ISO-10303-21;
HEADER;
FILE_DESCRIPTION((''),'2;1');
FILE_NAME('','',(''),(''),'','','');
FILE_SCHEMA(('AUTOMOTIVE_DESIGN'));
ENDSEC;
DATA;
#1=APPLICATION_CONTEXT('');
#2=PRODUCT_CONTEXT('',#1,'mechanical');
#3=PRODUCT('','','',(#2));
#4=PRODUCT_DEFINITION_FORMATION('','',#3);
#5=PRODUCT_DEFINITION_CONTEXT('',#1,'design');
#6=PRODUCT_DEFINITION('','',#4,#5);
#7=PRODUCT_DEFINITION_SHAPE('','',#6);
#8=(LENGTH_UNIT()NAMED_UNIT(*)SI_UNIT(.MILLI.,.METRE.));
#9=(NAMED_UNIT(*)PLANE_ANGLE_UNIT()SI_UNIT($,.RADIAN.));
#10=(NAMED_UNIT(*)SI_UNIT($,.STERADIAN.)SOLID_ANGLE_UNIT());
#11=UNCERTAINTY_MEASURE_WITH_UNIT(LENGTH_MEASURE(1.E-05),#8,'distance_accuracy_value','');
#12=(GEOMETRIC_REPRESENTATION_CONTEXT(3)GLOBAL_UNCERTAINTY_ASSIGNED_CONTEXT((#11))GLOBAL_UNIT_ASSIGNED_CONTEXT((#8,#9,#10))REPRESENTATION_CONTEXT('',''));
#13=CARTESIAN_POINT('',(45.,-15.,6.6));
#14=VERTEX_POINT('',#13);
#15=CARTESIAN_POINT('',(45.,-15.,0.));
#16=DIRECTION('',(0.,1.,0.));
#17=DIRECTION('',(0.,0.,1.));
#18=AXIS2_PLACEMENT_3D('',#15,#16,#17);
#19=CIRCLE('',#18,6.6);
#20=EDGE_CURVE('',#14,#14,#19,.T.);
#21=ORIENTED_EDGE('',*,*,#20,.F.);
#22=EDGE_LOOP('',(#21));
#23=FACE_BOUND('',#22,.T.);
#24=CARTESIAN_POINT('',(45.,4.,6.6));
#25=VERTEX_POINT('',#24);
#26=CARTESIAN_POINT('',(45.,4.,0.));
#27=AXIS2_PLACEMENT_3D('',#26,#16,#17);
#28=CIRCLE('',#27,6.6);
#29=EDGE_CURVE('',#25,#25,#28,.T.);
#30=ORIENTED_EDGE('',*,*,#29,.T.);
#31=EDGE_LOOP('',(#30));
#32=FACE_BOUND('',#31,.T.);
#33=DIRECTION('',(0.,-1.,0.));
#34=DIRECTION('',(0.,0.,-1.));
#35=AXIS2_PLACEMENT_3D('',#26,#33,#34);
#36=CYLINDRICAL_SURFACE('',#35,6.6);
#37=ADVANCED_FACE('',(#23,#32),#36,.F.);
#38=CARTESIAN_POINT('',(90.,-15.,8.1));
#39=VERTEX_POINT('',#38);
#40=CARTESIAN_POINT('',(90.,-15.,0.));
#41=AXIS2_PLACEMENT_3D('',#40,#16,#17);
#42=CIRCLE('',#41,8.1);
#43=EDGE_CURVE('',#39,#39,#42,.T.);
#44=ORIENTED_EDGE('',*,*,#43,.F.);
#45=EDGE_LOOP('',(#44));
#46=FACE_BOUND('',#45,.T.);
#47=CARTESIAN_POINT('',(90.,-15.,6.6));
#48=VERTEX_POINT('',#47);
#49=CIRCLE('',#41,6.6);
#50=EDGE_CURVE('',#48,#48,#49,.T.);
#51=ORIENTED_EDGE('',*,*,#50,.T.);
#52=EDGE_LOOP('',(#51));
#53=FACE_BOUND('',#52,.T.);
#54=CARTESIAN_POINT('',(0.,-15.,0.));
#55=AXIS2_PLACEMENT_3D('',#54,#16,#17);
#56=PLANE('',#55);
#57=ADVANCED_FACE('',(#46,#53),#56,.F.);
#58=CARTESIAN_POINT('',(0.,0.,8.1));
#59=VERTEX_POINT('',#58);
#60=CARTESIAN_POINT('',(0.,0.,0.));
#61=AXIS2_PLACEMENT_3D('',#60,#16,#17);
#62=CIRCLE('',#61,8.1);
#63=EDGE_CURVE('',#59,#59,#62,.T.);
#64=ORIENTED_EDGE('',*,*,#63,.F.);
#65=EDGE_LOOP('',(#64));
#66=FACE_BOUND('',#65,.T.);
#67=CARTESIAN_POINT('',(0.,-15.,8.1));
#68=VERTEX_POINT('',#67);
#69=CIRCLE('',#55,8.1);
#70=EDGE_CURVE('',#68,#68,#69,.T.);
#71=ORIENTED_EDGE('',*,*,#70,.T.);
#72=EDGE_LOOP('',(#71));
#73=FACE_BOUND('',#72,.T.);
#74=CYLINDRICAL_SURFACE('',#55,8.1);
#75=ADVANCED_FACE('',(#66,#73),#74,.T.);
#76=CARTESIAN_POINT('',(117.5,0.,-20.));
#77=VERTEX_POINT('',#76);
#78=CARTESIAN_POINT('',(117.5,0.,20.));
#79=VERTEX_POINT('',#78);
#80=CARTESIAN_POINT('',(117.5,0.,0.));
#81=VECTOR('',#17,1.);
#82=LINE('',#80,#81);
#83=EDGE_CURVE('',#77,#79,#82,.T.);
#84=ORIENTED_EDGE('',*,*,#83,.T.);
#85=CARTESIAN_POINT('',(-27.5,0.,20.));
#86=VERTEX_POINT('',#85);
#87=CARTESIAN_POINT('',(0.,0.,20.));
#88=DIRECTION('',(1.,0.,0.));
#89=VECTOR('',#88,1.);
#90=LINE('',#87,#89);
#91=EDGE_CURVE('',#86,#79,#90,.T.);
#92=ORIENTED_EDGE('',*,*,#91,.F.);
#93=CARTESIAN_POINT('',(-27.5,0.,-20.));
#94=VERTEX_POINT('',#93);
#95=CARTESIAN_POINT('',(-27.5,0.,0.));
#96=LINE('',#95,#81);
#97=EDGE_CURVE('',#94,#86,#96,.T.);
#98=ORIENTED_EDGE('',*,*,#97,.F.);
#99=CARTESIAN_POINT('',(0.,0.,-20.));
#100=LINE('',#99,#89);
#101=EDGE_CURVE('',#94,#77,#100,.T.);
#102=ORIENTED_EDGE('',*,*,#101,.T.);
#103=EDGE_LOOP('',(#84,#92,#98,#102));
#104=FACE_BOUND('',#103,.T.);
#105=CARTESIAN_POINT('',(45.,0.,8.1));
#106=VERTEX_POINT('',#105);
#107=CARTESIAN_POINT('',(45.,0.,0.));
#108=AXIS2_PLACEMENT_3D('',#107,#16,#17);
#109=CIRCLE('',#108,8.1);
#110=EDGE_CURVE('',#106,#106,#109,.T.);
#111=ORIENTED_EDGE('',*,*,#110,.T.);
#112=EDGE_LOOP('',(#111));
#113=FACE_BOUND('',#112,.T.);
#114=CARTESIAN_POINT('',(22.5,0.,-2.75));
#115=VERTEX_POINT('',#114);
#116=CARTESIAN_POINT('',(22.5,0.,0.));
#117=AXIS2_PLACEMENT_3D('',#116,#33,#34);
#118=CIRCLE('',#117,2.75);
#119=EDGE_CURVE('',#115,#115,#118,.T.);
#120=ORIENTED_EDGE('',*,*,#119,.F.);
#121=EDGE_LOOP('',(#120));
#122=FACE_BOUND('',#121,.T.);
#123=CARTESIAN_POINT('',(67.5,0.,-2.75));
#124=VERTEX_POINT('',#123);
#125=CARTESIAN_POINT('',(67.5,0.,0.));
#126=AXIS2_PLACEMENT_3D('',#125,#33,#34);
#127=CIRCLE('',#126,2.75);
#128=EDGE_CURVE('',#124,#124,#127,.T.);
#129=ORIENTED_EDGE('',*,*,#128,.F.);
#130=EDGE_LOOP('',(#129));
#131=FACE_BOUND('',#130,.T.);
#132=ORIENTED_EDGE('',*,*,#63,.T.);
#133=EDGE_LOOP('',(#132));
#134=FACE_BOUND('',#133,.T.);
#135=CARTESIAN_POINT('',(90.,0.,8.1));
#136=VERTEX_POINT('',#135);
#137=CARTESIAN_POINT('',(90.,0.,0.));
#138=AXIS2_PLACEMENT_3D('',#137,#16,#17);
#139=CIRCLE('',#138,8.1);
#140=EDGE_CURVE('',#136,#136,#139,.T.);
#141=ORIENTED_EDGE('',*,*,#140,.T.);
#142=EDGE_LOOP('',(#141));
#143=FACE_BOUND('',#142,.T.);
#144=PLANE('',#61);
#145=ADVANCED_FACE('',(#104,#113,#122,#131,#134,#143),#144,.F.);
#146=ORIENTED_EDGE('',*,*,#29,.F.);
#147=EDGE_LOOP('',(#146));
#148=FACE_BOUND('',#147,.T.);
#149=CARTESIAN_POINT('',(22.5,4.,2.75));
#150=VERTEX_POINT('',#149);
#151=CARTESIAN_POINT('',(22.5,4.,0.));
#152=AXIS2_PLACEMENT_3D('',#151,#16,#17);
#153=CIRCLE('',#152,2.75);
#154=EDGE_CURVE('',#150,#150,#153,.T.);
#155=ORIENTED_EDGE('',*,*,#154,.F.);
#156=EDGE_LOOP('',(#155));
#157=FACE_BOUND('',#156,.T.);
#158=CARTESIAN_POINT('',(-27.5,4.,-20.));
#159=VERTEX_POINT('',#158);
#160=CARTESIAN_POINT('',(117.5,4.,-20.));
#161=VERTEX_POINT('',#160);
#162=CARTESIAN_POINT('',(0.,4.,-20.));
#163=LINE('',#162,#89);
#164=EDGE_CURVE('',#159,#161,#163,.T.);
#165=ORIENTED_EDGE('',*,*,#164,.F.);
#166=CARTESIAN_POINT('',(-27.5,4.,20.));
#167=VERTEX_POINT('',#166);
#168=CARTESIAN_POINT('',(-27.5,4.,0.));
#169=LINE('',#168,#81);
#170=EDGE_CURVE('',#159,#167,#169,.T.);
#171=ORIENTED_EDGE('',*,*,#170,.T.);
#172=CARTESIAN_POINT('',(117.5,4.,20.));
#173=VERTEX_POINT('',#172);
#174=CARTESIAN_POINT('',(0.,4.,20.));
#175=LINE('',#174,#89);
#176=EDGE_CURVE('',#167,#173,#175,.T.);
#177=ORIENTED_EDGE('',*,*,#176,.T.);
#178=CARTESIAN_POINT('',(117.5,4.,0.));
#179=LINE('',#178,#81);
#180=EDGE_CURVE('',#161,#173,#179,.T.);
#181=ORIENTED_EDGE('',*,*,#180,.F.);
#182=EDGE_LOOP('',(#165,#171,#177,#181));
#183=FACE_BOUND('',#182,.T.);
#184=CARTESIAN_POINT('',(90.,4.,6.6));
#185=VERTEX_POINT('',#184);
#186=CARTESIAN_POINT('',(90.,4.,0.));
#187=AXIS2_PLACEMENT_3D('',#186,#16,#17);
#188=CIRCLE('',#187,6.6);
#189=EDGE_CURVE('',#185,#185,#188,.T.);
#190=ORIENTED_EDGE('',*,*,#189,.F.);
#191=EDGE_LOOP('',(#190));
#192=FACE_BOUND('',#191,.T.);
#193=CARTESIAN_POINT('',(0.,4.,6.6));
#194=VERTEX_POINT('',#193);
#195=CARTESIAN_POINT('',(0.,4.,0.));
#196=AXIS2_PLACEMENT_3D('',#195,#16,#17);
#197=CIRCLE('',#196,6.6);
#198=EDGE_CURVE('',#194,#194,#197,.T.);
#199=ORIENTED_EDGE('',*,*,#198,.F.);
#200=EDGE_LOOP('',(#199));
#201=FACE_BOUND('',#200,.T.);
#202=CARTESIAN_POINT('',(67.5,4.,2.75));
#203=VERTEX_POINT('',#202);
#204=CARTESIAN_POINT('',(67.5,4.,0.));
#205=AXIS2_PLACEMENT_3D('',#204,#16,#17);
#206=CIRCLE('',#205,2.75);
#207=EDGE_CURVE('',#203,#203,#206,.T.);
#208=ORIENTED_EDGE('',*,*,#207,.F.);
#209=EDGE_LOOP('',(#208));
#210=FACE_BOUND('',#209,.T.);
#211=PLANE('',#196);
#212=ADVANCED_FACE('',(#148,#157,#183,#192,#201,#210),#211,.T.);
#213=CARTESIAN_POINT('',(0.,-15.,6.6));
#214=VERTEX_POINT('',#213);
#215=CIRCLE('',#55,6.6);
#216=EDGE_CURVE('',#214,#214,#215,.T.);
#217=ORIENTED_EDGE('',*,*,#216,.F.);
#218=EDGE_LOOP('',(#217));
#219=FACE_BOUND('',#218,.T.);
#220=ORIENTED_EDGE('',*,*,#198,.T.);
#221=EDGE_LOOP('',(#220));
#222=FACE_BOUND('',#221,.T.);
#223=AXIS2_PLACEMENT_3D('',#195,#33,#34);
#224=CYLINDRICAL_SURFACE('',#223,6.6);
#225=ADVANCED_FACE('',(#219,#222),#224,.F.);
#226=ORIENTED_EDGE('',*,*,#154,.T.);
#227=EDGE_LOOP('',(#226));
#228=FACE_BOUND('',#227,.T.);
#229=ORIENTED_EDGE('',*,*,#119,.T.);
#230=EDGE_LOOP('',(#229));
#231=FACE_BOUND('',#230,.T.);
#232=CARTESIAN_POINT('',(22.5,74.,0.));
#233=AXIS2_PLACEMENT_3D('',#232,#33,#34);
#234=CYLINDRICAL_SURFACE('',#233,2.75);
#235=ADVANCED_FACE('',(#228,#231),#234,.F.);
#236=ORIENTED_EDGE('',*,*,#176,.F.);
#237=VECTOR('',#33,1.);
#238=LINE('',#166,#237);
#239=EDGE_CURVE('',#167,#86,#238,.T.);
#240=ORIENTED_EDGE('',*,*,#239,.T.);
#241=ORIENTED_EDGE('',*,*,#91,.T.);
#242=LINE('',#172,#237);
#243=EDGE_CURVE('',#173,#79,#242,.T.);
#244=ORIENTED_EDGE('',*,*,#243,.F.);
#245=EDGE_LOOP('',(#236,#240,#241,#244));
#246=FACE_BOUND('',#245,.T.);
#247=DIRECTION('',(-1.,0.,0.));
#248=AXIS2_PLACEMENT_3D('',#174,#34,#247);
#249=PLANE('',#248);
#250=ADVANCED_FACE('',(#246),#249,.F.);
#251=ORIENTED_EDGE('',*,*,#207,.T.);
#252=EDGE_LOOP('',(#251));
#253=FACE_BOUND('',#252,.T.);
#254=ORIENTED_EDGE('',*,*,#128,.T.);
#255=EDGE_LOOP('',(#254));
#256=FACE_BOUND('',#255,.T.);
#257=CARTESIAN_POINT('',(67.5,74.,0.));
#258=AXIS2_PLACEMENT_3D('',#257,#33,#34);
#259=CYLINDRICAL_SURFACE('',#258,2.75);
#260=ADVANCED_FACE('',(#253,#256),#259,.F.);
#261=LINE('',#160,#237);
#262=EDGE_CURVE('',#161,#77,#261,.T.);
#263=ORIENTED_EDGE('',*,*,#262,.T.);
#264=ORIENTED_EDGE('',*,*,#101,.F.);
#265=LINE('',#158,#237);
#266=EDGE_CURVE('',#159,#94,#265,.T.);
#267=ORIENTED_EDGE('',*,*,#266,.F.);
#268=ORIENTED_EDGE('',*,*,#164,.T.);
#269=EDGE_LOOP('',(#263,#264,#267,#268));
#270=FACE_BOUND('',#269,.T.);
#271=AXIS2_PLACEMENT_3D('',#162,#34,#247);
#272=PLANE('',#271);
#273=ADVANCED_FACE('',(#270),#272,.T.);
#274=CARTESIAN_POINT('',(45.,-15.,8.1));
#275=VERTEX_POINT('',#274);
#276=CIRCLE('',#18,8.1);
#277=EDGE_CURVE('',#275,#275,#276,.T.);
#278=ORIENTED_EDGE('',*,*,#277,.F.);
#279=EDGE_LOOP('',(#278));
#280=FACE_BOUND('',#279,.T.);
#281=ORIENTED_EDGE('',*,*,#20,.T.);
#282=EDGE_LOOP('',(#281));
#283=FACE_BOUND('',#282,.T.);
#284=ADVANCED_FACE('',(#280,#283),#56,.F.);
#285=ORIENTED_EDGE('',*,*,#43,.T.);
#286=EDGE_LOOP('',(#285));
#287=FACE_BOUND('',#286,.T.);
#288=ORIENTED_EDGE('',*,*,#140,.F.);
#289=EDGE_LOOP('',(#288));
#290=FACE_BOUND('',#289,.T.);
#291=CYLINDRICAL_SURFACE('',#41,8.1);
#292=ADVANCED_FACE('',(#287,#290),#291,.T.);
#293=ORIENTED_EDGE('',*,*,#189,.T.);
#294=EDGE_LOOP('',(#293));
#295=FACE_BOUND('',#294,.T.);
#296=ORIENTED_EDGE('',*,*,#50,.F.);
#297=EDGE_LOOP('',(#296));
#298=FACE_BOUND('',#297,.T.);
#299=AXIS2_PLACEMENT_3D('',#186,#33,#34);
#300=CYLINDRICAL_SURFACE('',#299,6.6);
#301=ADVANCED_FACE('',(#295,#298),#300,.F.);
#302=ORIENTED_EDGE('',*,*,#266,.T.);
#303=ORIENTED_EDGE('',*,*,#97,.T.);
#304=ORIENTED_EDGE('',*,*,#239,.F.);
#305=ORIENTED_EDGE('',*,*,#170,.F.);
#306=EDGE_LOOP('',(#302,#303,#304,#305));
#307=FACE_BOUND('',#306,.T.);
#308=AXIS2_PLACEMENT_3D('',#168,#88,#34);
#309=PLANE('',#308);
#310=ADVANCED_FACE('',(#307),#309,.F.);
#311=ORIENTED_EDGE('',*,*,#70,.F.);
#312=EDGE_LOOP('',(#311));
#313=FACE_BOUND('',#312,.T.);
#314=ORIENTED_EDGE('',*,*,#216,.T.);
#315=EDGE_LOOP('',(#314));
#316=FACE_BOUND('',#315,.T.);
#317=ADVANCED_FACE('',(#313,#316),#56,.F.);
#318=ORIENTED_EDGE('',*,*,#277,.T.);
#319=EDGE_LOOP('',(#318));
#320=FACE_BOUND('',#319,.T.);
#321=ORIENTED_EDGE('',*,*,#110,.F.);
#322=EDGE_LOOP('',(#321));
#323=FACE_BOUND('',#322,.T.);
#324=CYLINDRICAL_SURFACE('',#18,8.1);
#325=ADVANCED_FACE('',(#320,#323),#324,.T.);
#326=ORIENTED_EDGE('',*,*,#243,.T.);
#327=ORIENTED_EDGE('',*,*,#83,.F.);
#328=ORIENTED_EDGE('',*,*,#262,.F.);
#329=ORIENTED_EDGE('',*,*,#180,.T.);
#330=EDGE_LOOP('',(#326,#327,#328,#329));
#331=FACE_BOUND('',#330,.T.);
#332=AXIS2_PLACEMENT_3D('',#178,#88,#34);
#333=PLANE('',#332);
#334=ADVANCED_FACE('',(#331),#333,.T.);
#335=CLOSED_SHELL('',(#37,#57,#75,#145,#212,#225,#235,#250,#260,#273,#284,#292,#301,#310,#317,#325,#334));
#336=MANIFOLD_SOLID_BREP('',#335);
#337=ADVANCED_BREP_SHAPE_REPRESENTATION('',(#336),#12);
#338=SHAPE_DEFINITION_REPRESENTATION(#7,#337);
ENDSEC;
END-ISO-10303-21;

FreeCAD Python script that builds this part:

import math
import FreeCAD as App
import Part
import Sketcher

doc = App.newDocument("Part")
body = doc.addObject("PartDesign::Body", "Body")

sketch1 = body.newObject("Sketcher::SketchObject", "Sketch")
sketch1.AttachmentSupport = (doc.getObject("XZ_Plane"), [""])
sketch1.MapMode = "FlatFace"
sketch1.addGeometry([
    Part.LineSegment(App.Vector(-28, -20, 0), App.Vector(-28, 20, 0)),
    Part.LineSegment(App.Vector(-28, 20, 0), App.Vector(118, 20, 0)),
    Part.LineSegment(App.Vector(118, 20, 0), App.Vector(118, -20, 0)),
    Part.LineSegment(App.Vector(118, -20, 0), App.Vector(-28, -20, 0)),
    Part.ArcOfCircle(Part.Circle(App.Vector(45, 0, 0), App.Vector(0, 0, 1), 7), math.radians(180), math.radians(270)),
    Part.ArcOfCircle(Part.Circle(App.Vector(45, 0, 0), App.Vector(0, 0, 1), 7), math.radians(-90), math.radians(0)),
    Part.ArcOfCircle(Part.Circle(App.Vector(45, 0, 0), App.Vector(0, 0, 1), 7), math.radians(0), math.radians(180)),
    Part.Circle(App.Vector(0, 0, 0), App.Vector(0, 0, 1), 7),
    Part.Circle(App.Vector(90, 0, 0), App.Vector(0, 0, 1), 7),
], False)
sketch1.addConstraint([
    Sketcher.Constraint("Coincident", 0, 2, 1, 1),
    Sketcher.Constraint("Coincident", 1, 2, 2, 1),
    Sketcher.Constraint("Coincident", 2, 2, 3, 1),
    Sketcher.Constraint("Coincident", 3, 2, 0, 1),
    Sketcher.Constraint("Tangent", 4, 2, 5, 1),
    Sketcher.Constraint("Tangent", 5, 2, 6, 1),
    Sketcher.Constraint("Tangent", 6, 2, 4, 1),
    Sketcher.Constraint("Vertical", 0),
    Sketcher.Constraint("Horizontal", 1),
    Sketcher.Constraint("Vertical", 2),
    Sketcher.Constraint("Horizontal", 3),
    Sketcher.Constraint("Coincident", 7, 3, -1, 1),
    Sketcher.Constraint("Equal", 6, 7),
    Sketcher.Constraint("Equal", 7, 8),
    Sketcher.Constraint("PointOnObject", 4, 3, -1),
    Sketcher.Constraint("PointOnObject", 8, 3, -1),
    Sketcher.Constraint("PointOnObject", 5, 2, -1),
    Sketcher.Constraint("PointOnObject", 6, 2, -1),
    Sketcher.Constraint("Vertical", 6, 3, 4, 2),
    Sketcher.Constraint("Diameter", 7, 13.2),
    Sketcher.Constraint("DistanceX", 1, 1, 1, 2, 145.0),
    Sketcher.Constraint("DistanceY", 0, 1, 0, 2, 40.0),
    Sketcher.Constraint("DistanceX", -1, 1, 4, 3, 45.0),
    Sketcher.Constraint("DistanceX", -1, 1, 8, 3, 90.0),
    Sketcher.Constraint("DistanceY", -1, 1, 0, 2, 20.0),
    Sketcher.Constraint("DistanceX", 0, 2, -1, 1, 27.5),
])
pad1 = body.newObject("PartDesign::Pad", "Pad")
pad1.Profile = sketch1
pad1.Length = 4
pad1.Reversed = True

sketch2 = body.newObject("Sketcher::SketchObject", "Sketch001")
sketch2.AttachmentSupport = (doc.getObject("XZ_Plane"), [""])
sketch2.MapMode = "FlatFace"
sketch2.AttachmentOffset = App.Placement(App.Vector(0, 0, 15), App.Rotation())
sketch2.addGeometry([
    Part.Circle(App.Vector(0, 0, 0), App.Vector(0, 0, 1), 8),
    Part.Circle(App.Vector(0, 0, 0), App.Vector(0, 0, 1), 7),
    Part.ArcOfCircle(Part.Circle(App.Vector(45, 0, 0), App.Vector(0, 0, 1), 8), math.radians(-90), math.radians(0)),
    Part.ArcOfCircle(Part.Circle(App.Vector(45, 0, 0), App.Vector(0, 0, 1), 8), math.radians(180), math.radians(270)),
    Part.ArcOfCircle(Part.Circle(App.Vector(45, 0, 0), App.Vector(0, 0, 1), 8), math.radians(0), math.radians(180)),
    Part.ArcOfCircle(Part.Circle(App.Vector(45, 0, 0), App.Vector(0, 0, 1), 7), math.radians(-90), math.radians(0)),
    Part.ArcOfCircle(Part.Circle(App.Vector(45, 0, 0), App.Vector(0, 0, 1), 7), math.radians(0), math.radians(180)),
    Part.ArcOfCircle(Part.Circle(App.Vector(45, 0, 0), App.Vector(0, 0, 1), 7), math.radians(180), math.radians(270)),
    Part.Circle(App.Vector(90, 0, 0), App.Vector(0, 0, 1), 8),
    Part.Circle(App.Vector(90, 0, 0), App.Vector(0, 0, 1), 7),
], False)
sketch2.addConstraint([
    Sketcher.Constraint("Tangent", 2, 1, 3, 2),
    Sketcher.Constraint("Tangent", 3, 1, 4, 2),
    Sketcher.Constraint("Tangent", 4, 1, 2, 2),
    Sketcher.Constraint("Tangent", 5, 2, 6, 1),
    Sketcher.Constraint("Tangent", 6, 2, 7, 1),
    Sketcher.Constraint("Tangent", 7, 2, 5, 1),
    Sketcher.Constraint("Coincident", 0, 3, -1, 1),
    Sketcher.Constraint("Coincident", 1, 3, -1, 1),
    Sketcher.Constraint("Coincident", 5, 3, 2, 3),
    Sketcher.Constraint("Coincident", 9, 3, 8, 3),
    Sketcher.Constraint("Equal", 0, 2),
    Sketcher.Constraint("Equal", 1, 5),
    Sketcher.Constraint("Equal", 4, 8),
    Sketcher.Constraint("Equal", 7, 9),
    Sketcher.Constraint("PointOnObject", 2, 3, -1),
    Sketcher.Constraint("PointOnObject", 8, 3, -1),
    Sketcher.Constraint("PointOnObject", 3, 1, -1),
    Sketcher.Constraint("PointOnObject", 4, 1, -1),
    Sketcher.Constraint("PointOnObject", 5, 2, -1),
    Sketcher.Constraint("PointOnObject", 6, 2, -1),
    Sketcher.Constraint("Vertical", 7, 3, 2, 1),
    Sketcher.Constraint("Vertical", 2, 1, 7, 2),
    Sketcher.Constraint("Diameter", 0, 16.2),
    Sketcher.Constraint("Diameter", 1, 13.2),
    Sketcher.Constraint("DistanceX", -1, 1, 2, 3, 45.0),
    Sketcher.Constraint("DistanceX", -1, 1, 8, 3, 90.0),
])
pad2 = body.newObject("PartDesign::Pad", "Pad001")
pad2.Profile = sketch2
pad2.Length = 15
pad2.Reversed = True

sketch3 = body.newObject("Sketcher::SketchObject", "Sketch002")
sketch3.AttachmentSupport = (doc.getObject("XZ_Plane"), [""])
sketch3.MapMode = "FlatFace"
sketch3.addGeometry([
    Part.Circle(App.Vector(22.5, 0, 0), App.Vector(0, 0, 1), 2.8),
    Part.Circle(App.Vector(67.5, 0, 0), App.Vector(0, 0, 1), 2.8),
], False)
sketch3.addConstraint([
    Sketcher.Constraint("Equal", 0, 1),
    Sketcher.Constraint("PointOnObject", 0, 3, -1),
    Sketcher.Constraint("PointOnObject", 1, 3, -1),
    Sketcher.Constraint("Diameter", 0, 5.5),
    Sketcher.Constraint("DistanceX", 0, 3, 1, 3, 45.0),
    Sketcher.Constraint("DistanceX", -1, 1, 0, 3, 22.5),
])
pocket1 = body.newObject("PartDesign::Pocket", "Pocket")
pocket1.Profile = sketch3
pocket1.Length = 74

doc.recompute()
